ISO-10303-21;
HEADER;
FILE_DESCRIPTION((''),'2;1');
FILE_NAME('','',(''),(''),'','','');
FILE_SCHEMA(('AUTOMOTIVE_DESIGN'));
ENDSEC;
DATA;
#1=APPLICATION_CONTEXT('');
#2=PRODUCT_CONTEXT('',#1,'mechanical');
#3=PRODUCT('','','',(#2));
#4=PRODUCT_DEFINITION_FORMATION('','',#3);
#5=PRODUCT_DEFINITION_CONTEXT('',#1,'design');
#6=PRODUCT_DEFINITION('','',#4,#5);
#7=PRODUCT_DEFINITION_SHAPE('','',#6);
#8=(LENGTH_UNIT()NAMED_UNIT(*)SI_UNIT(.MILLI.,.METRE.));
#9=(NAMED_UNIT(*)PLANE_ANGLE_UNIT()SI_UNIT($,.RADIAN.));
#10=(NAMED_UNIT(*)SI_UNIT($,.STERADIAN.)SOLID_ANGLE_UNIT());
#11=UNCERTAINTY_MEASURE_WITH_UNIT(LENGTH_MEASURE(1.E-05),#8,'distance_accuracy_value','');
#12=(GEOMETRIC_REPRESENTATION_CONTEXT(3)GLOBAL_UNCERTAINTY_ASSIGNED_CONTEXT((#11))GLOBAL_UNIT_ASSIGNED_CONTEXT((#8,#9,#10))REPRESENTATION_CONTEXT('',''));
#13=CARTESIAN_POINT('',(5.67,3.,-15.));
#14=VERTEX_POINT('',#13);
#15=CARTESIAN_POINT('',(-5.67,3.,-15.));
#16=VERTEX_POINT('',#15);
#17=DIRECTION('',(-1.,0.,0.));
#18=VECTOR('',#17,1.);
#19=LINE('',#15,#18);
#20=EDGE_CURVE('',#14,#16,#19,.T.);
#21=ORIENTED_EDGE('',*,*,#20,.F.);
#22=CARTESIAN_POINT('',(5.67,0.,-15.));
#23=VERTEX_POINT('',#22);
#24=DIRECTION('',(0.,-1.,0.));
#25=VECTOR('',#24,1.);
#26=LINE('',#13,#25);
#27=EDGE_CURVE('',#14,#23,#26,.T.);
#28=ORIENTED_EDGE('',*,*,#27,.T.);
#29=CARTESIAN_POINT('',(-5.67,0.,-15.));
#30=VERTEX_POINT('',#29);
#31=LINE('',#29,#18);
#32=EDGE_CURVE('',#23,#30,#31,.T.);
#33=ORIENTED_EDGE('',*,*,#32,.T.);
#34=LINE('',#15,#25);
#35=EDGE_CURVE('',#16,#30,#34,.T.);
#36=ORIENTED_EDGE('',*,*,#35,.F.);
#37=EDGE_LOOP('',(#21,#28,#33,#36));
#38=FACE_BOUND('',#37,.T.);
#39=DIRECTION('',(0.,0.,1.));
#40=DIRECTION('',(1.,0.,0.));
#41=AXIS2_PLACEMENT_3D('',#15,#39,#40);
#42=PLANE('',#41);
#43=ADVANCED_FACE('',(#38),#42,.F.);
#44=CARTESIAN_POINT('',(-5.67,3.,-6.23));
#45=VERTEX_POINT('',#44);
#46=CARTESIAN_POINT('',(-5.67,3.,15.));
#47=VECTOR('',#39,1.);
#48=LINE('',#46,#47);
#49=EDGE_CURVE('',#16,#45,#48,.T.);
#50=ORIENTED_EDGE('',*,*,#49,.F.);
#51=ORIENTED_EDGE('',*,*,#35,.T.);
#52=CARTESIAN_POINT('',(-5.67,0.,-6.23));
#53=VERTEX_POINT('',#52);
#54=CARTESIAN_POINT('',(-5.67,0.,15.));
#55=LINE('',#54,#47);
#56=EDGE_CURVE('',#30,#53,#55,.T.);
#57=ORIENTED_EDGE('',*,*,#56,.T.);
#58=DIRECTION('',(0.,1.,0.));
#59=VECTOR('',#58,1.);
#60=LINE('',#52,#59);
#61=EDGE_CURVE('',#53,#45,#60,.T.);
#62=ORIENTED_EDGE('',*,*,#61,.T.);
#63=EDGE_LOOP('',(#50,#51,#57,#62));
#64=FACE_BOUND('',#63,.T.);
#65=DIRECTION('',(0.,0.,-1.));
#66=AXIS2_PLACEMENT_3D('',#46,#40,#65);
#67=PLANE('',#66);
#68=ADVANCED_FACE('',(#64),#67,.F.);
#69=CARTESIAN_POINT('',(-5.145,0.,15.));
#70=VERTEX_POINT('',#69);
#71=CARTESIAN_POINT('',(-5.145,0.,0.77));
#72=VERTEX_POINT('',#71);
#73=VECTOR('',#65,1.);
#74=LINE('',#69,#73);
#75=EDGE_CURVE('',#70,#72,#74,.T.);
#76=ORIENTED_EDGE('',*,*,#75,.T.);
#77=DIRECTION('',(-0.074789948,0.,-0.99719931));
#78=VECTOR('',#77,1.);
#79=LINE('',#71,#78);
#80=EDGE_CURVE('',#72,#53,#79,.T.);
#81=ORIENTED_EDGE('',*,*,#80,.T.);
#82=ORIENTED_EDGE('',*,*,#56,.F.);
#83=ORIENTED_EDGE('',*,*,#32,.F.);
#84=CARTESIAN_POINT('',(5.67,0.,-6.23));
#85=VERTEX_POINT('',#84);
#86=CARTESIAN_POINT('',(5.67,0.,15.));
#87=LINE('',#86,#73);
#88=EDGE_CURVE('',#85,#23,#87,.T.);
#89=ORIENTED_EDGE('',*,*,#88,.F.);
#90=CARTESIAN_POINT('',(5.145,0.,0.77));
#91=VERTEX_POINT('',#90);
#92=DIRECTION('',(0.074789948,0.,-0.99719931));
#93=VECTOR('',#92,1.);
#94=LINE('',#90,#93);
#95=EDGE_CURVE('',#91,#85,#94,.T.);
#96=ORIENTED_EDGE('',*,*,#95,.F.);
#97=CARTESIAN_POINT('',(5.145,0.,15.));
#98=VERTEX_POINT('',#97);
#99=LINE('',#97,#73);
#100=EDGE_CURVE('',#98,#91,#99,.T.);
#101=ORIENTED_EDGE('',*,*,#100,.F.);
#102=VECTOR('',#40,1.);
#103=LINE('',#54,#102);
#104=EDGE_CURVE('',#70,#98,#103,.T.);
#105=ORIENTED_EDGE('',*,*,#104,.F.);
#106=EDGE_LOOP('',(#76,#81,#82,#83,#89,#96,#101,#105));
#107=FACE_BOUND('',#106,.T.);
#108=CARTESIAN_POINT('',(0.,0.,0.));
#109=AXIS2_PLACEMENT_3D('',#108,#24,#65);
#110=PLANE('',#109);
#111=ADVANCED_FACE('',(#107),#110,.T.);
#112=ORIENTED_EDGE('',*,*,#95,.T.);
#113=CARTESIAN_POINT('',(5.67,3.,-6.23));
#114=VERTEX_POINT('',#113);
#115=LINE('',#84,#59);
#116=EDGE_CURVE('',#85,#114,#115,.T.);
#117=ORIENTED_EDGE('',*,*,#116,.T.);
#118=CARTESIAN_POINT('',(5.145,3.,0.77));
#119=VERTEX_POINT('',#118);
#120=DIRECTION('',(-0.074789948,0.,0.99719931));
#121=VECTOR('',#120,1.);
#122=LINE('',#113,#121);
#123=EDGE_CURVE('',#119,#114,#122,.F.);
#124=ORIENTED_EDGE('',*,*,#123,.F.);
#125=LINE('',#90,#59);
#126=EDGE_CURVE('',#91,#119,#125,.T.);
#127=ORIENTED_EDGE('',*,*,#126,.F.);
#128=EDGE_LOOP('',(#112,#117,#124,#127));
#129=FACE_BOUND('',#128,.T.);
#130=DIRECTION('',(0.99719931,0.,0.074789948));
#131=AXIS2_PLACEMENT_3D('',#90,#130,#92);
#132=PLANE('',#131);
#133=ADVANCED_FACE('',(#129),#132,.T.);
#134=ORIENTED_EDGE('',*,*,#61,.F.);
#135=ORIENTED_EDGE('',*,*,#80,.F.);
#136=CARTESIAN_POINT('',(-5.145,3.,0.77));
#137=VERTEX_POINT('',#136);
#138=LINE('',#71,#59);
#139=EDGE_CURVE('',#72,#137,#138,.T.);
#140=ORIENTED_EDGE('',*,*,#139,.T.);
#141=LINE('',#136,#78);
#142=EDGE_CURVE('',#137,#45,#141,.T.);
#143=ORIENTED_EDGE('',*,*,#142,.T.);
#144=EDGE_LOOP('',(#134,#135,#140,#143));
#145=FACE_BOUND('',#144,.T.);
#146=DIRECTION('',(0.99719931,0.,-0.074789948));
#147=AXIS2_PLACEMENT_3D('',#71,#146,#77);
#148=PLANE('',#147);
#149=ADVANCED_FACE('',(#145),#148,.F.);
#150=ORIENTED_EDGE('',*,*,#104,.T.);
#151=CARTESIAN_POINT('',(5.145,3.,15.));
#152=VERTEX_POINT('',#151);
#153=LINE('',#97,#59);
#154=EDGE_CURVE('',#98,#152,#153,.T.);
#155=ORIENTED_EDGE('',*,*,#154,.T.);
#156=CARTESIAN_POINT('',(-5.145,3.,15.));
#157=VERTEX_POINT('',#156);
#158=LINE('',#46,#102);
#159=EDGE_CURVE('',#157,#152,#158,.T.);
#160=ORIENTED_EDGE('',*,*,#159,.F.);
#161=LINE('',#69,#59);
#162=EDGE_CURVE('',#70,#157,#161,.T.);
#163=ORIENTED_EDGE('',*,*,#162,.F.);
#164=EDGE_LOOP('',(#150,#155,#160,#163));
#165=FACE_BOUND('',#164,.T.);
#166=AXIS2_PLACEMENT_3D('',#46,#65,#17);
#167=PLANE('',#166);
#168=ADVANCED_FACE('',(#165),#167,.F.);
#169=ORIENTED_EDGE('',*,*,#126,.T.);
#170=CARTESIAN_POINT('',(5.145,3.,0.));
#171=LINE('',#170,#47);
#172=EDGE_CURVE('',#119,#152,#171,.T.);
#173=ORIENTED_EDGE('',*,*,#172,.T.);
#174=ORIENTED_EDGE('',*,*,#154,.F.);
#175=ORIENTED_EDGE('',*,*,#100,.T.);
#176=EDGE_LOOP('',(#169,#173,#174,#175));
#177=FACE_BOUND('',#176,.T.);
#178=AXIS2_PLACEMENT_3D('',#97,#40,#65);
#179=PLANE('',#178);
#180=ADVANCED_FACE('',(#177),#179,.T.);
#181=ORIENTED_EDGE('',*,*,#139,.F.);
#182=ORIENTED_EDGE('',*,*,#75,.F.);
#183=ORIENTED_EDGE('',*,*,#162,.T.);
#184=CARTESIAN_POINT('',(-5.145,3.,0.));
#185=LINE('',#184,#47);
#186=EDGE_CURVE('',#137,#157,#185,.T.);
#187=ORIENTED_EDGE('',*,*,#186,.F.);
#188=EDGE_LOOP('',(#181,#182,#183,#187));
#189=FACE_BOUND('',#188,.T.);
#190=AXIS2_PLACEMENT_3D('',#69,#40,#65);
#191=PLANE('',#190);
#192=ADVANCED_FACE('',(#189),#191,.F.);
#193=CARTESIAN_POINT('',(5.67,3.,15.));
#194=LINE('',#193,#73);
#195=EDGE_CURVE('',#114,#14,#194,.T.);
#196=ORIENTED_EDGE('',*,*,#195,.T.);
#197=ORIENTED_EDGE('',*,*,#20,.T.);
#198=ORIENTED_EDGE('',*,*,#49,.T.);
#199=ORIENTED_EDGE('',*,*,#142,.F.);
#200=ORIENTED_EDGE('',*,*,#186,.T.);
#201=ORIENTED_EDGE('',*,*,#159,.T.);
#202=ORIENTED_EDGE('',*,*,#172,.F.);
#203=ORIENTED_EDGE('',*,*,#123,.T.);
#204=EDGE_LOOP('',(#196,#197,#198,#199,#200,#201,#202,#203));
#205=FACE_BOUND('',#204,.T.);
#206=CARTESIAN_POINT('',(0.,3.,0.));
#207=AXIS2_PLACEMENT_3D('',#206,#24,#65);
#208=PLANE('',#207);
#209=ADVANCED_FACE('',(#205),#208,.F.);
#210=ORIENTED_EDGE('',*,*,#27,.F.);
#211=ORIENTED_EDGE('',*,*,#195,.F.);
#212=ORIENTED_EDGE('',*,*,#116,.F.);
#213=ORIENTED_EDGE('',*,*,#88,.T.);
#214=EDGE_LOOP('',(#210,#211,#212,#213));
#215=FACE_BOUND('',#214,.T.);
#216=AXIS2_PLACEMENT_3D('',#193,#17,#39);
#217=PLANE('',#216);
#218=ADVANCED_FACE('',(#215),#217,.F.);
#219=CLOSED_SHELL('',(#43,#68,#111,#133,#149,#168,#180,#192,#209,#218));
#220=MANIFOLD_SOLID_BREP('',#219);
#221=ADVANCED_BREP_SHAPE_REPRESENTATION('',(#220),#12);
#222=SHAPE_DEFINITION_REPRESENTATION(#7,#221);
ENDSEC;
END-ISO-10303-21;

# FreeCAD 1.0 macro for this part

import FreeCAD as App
import Part
import Sketcher
Q = App.Units.Quantity


def add_polygon(sketch, points):
    """Adds a closed chain of lines whose ends are joined by coincident constraints."""
    first, n = sketch.GeometryCount, len(points)
    for a, b in zip(points, points[1:] + points[:1]):
        sketch.addGeometry(Part.LineSegment(App.Vector(*a, 0), App.Vector(*b, 0)), False)
    for i in range(n):
        sketch.addConstraint(Sketcher.Constraint("Coincident", first + i, 2, first + (i + 1) % n, 1))

doc = App.newDocument("Part")
body = doc.addObject("PartDesign::Body", "Body")

sketch1 = body.newObject("Sketcher::SketchObject", "Sketch")
sketch1.AttachmentSupport = (doc.getObject("XZ_Plane"), [""])
sketch1.MapMode = "FlatFace"
add_polygon(sketch1, [(-6, -15), (-6, 15), (6, 15), (6, -15)])
sketch1.addConstraint(Sketcher.Constraint("Vertical", 0))
sketch1.addConstraint(Sketcher.Constraint("Horizontal", 1))
sketch1.addConstraint(Sketcher.Constraint("Vertical", 2))
sketch1.addConstraint(Sketcher.Constraint("Horizontal", 3))
sketch1.addConstraint(Sketcher.Constraint("Symmetric", 0, 2, 2, 2, -1, 1))
sketch1.addConstraint(Sketcher.Constraint("DistanceY", 0, 1, 0, 2, Q("30 mm")))
sketch1.addConstraint(Sketcher.Constraint("DistanceX", 1, 1, 1, 2, Q("11.34 mm")))
pad1 = body.newObject("PartDesign::Pad", "Pad")
pad1.Profile = sketch1
pad1.Length = 3
pad1.Reversed = True

sketch2 = body.newObject("Sketcher::SketchObject", "Sketch001")
sketch2.AttachmentSupport = (doc.getObject("XZ_Plane"), [""])
sketch2.MapMode = "FlatFace"
sketch2.AttachmentOffset = App.Placement(App.Vector(0, 0, 1), App.Rotation())
add_polygon(sketch2, [(-5.1, 15), (-5.1, 0.8), (-5.7, -6.2), (-5.7, 15)])
sketch2.addConstraint(Sketcher.Constraint("Vertical", 0))
sketch2.addConstraint(Sketcher.Constraint("Vertical", 2))
sketch2.addConstraint(Sketcher.Constraint("Horizontal", 3))
sketch2.addConstraint(Sketcher.Constraint("DistanceY", -1, 1, 2, 2, Q("15 mm")))
sketch2.addConstraint(Sketcher.Constraint("DistanceY", 1, 2, 0, 2, Q("7 mm")))
sketch2.addConstraint(Sketcher.Constraint("DistanceY", 0, 2, 0, 1, Q("14.23 mm")))
sketch2.addConstraint(Sketcher.Constraint("DistanceX", 3, 1, 3, 2, Q("0.525 mm")))
sketch2.addConstraint(Sketcher.Constraint("DistanceX", 1, 2, -1, 1, Q("5.67 mm")))
pocket1 = body.newObject("PartDesign::Pocket", "Pocket")
pocket1.Profile = sketch2
pocket1.Length = 5
doc.recompute()

mirrored = body.newObject("PartDesign::Mirrored", "Mirrored")
mirrored.Originals = [pocket1]
mirrored.MirrorPlane = (doc.getObject("YZ_Plane"), [""])
body.Tip = mirrored

doc.recompute()
